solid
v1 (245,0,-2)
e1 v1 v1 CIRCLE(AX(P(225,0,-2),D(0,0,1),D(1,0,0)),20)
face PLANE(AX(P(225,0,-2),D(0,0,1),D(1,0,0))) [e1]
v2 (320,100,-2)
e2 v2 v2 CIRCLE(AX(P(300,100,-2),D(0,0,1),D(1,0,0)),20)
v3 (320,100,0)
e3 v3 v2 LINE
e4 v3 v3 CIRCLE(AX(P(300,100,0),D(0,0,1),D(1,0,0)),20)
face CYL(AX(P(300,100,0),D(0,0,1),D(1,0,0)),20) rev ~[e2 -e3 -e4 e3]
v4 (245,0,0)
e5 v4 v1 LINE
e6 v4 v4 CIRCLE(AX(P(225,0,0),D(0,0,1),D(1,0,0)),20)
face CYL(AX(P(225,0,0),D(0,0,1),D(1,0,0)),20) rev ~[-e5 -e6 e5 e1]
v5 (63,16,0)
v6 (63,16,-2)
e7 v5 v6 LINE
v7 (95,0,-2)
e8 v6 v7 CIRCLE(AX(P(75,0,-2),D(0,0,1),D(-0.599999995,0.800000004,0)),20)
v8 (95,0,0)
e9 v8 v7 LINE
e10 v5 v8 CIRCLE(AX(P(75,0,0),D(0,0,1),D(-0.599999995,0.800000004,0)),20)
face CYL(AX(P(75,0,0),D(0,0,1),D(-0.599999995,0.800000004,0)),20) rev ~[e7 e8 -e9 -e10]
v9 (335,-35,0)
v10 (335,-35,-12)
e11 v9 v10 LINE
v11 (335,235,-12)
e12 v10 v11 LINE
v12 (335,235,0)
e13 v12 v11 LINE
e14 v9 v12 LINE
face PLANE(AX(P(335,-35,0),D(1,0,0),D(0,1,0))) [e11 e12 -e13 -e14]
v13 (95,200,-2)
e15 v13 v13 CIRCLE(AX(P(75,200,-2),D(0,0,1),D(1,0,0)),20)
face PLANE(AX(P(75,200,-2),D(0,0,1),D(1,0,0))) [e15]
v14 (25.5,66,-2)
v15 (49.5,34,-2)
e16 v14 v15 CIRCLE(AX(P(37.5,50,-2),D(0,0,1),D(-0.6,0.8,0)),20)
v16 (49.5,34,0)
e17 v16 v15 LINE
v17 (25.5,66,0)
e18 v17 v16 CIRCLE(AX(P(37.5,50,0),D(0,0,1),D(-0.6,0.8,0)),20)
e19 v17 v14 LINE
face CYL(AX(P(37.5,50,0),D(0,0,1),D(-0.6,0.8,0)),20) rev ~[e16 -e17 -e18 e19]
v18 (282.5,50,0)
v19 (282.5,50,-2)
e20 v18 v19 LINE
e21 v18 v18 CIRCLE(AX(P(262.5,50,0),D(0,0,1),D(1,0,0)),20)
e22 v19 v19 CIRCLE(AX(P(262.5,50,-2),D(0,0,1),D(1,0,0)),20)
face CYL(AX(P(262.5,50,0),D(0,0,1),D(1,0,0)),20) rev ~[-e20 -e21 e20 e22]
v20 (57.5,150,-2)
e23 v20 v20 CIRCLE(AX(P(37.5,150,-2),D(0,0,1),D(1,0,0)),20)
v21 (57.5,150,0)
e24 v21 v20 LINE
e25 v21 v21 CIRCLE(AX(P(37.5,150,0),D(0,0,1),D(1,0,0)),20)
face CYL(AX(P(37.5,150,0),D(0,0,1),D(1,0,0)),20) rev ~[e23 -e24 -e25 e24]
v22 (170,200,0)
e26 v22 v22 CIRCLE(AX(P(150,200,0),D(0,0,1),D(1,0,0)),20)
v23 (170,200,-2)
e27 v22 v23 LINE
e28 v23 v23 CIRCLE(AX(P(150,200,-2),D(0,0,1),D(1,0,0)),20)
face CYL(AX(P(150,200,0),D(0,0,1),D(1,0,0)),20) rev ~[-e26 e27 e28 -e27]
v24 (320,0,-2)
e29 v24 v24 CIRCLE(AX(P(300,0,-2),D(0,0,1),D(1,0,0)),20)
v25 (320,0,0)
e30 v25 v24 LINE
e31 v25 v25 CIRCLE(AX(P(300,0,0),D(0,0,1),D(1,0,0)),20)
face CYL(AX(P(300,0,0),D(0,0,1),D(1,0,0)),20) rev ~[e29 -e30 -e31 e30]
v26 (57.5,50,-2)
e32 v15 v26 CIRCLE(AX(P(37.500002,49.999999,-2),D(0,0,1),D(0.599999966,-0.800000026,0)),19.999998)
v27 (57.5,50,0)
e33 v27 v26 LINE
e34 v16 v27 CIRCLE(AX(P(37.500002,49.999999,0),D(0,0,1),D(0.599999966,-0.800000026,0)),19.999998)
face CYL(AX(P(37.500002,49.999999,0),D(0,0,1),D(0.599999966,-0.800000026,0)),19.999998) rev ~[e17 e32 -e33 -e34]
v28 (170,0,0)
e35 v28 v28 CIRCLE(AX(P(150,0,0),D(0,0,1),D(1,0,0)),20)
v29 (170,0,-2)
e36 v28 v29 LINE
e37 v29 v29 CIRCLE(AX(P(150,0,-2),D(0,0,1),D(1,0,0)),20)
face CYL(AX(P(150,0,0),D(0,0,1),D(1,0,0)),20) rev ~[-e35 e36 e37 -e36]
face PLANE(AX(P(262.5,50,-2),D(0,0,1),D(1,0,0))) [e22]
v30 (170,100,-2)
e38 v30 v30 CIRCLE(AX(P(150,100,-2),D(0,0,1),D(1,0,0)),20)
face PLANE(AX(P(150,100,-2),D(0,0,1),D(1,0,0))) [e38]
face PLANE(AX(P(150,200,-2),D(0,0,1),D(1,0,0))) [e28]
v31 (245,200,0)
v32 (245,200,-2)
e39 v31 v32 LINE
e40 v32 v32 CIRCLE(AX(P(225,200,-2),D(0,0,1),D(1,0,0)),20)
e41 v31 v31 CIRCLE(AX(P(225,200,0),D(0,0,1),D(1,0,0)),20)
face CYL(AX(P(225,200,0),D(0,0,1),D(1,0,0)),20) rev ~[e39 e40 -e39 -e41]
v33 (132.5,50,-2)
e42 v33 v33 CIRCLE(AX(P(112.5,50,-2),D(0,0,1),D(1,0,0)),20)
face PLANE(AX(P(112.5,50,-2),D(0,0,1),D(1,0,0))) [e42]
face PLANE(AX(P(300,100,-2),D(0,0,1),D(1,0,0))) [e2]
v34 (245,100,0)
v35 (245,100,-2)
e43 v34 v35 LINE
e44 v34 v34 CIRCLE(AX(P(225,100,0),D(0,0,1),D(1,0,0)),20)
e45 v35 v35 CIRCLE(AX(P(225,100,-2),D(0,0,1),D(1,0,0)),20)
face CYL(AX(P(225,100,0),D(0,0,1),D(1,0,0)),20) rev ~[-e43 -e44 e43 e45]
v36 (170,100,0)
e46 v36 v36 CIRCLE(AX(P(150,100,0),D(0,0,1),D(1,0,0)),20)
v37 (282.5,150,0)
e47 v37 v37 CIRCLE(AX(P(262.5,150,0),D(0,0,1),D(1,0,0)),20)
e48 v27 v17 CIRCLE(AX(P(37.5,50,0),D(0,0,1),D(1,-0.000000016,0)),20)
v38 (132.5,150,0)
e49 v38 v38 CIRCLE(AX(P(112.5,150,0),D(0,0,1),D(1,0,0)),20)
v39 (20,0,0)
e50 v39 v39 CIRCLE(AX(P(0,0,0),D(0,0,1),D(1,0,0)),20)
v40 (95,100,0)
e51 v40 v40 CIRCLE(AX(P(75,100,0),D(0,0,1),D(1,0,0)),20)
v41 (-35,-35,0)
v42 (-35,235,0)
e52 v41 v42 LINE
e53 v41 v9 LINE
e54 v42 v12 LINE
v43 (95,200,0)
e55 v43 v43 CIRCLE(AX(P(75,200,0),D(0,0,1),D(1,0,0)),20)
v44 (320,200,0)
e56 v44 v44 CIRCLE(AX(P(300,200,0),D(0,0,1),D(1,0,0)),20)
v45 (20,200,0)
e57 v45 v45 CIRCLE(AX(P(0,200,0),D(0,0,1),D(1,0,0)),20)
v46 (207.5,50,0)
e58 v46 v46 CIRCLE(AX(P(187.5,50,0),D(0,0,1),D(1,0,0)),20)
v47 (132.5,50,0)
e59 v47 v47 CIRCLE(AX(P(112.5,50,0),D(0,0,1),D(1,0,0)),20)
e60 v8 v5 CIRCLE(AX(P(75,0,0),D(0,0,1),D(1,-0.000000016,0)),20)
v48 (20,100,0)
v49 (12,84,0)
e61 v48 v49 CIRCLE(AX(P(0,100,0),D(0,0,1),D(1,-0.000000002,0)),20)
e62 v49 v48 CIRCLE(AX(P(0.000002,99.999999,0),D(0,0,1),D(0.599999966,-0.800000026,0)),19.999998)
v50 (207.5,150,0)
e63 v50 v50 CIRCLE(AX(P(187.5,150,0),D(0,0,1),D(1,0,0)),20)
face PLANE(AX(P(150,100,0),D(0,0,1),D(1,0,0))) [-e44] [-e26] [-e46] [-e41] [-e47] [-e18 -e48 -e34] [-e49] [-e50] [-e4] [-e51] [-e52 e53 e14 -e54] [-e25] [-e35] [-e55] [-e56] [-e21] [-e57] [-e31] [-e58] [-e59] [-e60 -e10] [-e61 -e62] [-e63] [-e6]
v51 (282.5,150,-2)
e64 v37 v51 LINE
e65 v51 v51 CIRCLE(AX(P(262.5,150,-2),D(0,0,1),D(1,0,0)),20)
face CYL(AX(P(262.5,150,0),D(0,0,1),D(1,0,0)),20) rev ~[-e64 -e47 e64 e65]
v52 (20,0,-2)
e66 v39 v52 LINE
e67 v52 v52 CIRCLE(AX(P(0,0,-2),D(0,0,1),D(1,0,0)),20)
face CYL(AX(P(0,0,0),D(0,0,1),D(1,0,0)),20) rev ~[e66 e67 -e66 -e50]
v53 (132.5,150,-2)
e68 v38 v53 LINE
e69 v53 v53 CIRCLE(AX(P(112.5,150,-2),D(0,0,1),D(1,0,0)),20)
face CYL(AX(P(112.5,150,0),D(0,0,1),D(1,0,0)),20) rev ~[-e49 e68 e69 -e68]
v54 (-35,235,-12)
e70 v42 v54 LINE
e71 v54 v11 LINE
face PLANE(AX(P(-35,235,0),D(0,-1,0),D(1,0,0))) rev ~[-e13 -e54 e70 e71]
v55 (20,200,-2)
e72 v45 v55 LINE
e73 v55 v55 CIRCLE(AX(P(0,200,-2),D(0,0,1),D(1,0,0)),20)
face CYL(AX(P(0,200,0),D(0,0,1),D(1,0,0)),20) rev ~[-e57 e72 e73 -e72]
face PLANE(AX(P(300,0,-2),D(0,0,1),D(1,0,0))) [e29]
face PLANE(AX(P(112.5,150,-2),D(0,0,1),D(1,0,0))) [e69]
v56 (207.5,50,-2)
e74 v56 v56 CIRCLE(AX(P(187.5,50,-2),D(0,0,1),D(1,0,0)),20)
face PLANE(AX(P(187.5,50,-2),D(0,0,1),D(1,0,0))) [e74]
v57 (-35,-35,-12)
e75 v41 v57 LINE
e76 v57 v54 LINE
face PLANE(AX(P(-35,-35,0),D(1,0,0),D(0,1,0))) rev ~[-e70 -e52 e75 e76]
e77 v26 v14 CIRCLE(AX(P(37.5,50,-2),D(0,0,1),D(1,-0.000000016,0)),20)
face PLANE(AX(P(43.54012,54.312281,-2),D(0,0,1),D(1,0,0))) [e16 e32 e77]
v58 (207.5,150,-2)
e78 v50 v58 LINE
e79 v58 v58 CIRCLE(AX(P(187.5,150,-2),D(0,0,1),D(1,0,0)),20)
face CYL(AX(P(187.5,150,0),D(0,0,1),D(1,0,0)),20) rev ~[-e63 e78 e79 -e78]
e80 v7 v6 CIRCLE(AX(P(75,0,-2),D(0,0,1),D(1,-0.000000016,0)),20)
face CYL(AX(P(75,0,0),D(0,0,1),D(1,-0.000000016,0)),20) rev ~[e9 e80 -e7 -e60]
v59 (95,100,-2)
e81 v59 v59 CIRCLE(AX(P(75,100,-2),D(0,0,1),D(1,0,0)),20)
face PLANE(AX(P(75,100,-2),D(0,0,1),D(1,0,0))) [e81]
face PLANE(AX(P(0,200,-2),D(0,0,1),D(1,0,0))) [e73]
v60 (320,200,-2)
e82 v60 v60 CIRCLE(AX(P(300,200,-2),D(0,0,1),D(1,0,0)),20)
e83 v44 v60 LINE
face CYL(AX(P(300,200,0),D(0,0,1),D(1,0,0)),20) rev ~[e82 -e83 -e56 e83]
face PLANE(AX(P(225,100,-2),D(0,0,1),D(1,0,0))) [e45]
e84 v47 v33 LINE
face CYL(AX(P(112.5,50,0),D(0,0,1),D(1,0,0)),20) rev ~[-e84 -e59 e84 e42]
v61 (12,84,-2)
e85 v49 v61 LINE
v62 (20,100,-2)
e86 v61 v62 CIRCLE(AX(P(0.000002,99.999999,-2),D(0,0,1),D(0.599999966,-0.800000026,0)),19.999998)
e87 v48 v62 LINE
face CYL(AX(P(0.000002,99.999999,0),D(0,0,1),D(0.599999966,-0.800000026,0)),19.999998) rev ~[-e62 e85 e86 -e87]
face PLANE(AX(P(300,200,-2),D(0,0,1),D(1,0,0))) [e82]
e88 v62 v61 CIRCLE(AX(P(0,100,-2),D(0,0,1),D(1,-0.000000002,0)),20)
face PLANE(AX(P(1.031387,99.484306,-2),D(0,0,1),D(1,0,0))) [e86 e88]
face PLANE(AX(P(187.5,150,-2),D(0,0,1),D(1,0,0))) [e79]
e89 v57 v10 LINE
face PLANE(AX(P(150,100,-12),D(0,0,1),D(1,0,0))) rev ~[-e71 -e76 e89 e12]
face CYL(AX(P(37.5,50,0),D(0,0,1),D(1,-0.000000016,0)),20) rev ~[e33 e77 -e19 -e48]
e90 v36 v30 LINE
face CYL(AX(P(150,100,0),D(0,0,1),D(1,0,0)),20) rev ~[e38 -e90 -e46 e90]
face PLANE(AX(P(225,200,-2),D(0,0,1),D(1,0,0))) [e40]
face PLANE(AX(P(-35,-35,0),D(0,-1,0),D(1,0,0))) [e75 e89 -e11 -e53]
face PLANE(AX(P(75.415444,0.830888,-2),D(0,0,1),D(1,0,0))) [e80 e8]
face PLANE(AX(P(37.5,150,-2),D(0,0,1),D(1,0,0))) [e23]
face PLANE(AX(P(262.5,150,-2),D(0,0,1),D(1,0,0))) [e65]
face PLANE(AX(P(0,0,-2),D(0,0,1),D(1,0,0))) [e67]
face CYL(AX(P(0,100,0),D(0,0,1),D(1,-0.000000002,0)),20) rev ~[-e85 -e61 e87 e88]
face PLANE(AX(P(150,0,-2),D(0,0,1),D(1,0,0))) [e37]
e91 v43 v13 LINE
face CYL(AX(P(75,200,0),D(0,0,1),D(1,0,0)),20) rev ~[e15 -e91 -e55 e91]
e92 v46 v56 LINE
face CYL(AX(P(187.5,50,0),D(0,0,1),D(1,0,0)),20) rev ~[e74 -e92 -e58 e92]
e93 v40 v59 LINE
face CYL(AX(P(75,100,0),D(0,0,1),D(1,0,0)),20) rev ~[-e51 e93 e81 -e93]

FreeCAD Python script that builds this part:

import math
import FreeCAD as App
import Part
import Sketcher
from FreeCAD import Vector

doc = App.newDocument("Part")
body = doc.addObject("PartDesign::Body", "Body")
body.AllowCompound = True

sketch1 = body.newObject("Sketcher::SketchObject", "Sketch")
sketch1.AttachmentSupport = (doc.getObject("XY_Plane"), [""])
sketch1.MapMode = "FlatFace"
sketch1.addGeometry(Part.Circle(Vector(0, 200, 0), Vector(0, 0, 1), 20), False)
sketch1.addGeometry(Part.Circle(Vector(75, 200, 0), Vector(0, 0, 1), 20), False)
sketch1.addGeometry(Part.Circle(Vector(150, 200, 0), Vector(0, 0, 1), 20), False)
sketch1.addGeometry(Part.Circle(Vector(225, 200, 0), Vector(0, 0, 1), 20), False)
sketch1.addGeometry(Part.Circle(Vector(300, 200, 0), Vector(0, 0, 1), 20), False)
sketch1.addGeometry(Part.Circle(Vector(262, 150, 0), Vector(0, 0, 1), 20), False)
sketch1.addGeometry(Part.Circle(Vector(300, 100, 0), Vector(0, 0, 1), 20), False)
sketch1.addGeometry(Part.Circle(Vector(300, 0, 0), Vector(0, 0, 1), 20), False)
sketch1.addGeometry(Part.Circle(Vector(188, 150, 0), Vector(0, 0, 1), 20), False)
sketch1.addGeometry(Part.Circle(Vector(112, 150, 0), Vector(0, 0, 1), 20), False)
sketch1.addGeometry(Part.Circle(Vector(38, 150, 0), Vector(0, 0, 1), 20), False)
sketch1.addGeometry(Part.ArcOfCircle(Part.Circle(Vector(0, 100, 0), Vector(0, 0, 1), 20), math.radians(-53), math.radians(0)), False)
sketch1.addGeometry(Part.ArcOfCircle(Part.Circle(Vector(0, 100, 0), Vector(0, 0, 1), 20), math.radians(0), math.radians(307)), False)
sketch1.addGeometry(Part.Circle(Vector(75, 100, 0), Vector(0, 0, 1), 20), False)
sketch1.addGeometry(Part.Circle(Vector(150, 100, 0), Vector(0, 0, 1), 20), False)
sketch1.addGeometry(Part.Circle(Vector(225, 100, 0), Vector(0, 0, 1), 20), False)
sketch1.addGeometry(Part.Circle(Vector(262, 50, 0), Vector(0, 0, 1), 20), False)
sketch1.addGeometry(Part.Circle(Vector(188, 50, 0), Vector(0, 0, 1), 20), False)
sketch1.addGeometry(Part.Circle(Vector(225, 0, 0), Vector(0, 0, 1), 20), False)
sketch1.addGeometry(Part.Circle(Vector(150, 0, 0), Vector(0, 0, 1), 20), False)
sketch1.addGeometry(Part.Circle(Vector(112, 50, 0), Vector(0, 0, 1), 20), False)
sketch1.addGeometry(Part.ArcOfCircle(Part.Circle(Vector(38, 50, 0), Vector(0, 0, 1), 20), math.radians(0), math.radians(127)), False)
sketch1.addGeometry(Part.ArcOfCircle(Part.Circle(Vector(38, 50, 0), Vector(0, 0, 1), 20), math.radians(127), math.radians(307)), False)
sketch1.addGeometry(Part.ArcOfCircle(Part.Circle(Vector(38, 50, 0), Vector(0, 0, 1), 20), math.radians(-53), math.radians(0)), False)
sketch1.addGeometry(Part.Circle(Vector(0, 0, 0), Vector(0, 0, 1), 20), False)
sketch1.addGeometry(Part.ArcOfCircle(Part.Circle(Vector(75, 0, 0), Vector(0, 0, 1), 20), math.radians(0), math.radians(127)), False)
sketch1.addGeometry(Part.ArcOfCircle(Part.Circle(Vector(75, 0, 0), Vector(0, 0, 1), 20), math.radians(127), math.radians(360)), False)
sketch1.addConstraint(Sketcher.Constraint("Tangent", 11, 1, 12, 2))
sketch1.addConstraint(Sketcher.Constraint("Coincident", 12, 1, 11, 2))
sketch1.addConstraint(Sketcher.Constraint("Tangent", 21, 2, 22, 1))
sketch1.addConstraint(Sketcher.Constraint("Tangent", 22, 2, 23, 1))
sketch1.addConstraint(Sketcher.Constraint("Tangent", 23, 2, 21, 1))
sketch1.addConstraint(Sketcher.Constraint("Tangent", 25, 1, 26, 2))
sketch1.addConstraint(Sketcher.Constraint("Coincident", 26, 1, 25, 2))
sketch1.addConstraint(Sketcher.Constraint("Coincident", 24, 3, -1, 1))
sketch1.addConstraint(Sketcher.Constraint("Equal", 0, 1))
sketch1.addConstraint(Sketcher.Constraint("Equal", 1, 2))
sketch1.addConstraint(Sketcher.Constraint("Equal", 2, 3))
sketch1.addConstraint(Sketcher.Constraint("Equal", 3, 4))
sketch1.addConstraint(Sketcher.Constraint("Equal", 4, 5))
sketch1.addConstraint(Sketcher.Constraint("Equal", 5, 6))
sketch1.addConstraint(Sketcher.Constraint("Equal", 6, 7))
sketch1.addConstraint(Sketcher.Constraint("Equal", 7, 8))
sketch1.addConstraint(Sketcher.Constraint("Equal", 8, 9))
sketch1.addConstraint(Sketcher.Constraint("Equal", 9, 10))
sketch1.addConstraint(Sketcher.Constraint("Equal", 10, 11))
sketch1.addConstraint(Sketcher.Constraint("Equal", 12, 13))
sketch1.addConstraint(Sketcher.Constraint("Equal", 13, 14))
sketch1.addConstraint(Sketcher.Constraint("Equal", 14, 15))
sketch1.addConstraint(Sketcher.Constraint("Equal", 15, 16))
sketch1.addConstraint(Sketcher.Constraint("Equal", 16, 17))
sketch1.addConstraint(Sketcher.Constraint("Equal", 17, 18))
sketch1.addConstraint(Sketcher.Constraint("Equal", 18, 19))
sketch1.addConstraint(Sketcher.Constraint("Equal", 19, 20))
sketch1.addConstraint(Sketcher.Constraint("Equal", 20, 21))
sketch1.addConstraint(Sketcher.Constraint("Equal", 23, 24))
sketch1.addConstraint(Sketcher.Constraint("Equal", 24, 25))
sketch1.addConstraint(Sketcher.Constraint("PointOnObject", 0, 3, -2))
sketch1.addConstraint(Sketcher.Constraint("PointOnObject", 7, 3, -1))
sketch1.addConstraint(Sketcher.Constraint("PointOnObject", 11, 3, -2))
sketch1.addConstraint(Sketcher.Constraint("PointOnObject", 18, 3, -1))
sketch1.addConstraint(Sketcher.Constraint("PointOnObject", 19, 3, -1))
sketch1.addConstraint(Sketcher.Constraint("PointOnObject", 25, 3, -1))
sketch1.addConstraint(Sketcher.Constraint("PointOnObject", 25, 1, -1))
sketch1.addConstraint(Sketcher.Constraint("Horizontal", 0, 3, 1, 3))
sketch1.addConstraint(Sketcher.Constraint("Horizontal", 1, 3, 2, 3))
sketch1.addConstraint(Sketcher.Constraint("Horizontal", 2, 3, 3, 3))
sketch1.addConstraint(Sketcher.Constraint("Horizontal", 3, 3, 4, 3))
sketch1.addConstraint(Sketcher.Constraint("Horizontal", 5, 3, 8, 3))
sketch1.addConstraint(Sketcher.Constraint("Horizontal", 8, 3, 9, 3))
sketch1.addConstraint(Sketcher.Constraint("Horizontal", 9, 3, 10, 3))
sketch1.addConstraint(Sketcher.Constraint("Horizontal", 6, 3, 11, 3))
sketch1.addConstraint(Sketcher.Constraint("Horizontal", 12, 3, 13, 3))
sketch1.addConstraint(Sketcher.Constraint("Horizontal", 13, 3, 14, 3))
sketch1.addConstraint(Sketcher.Constraint("Horizontal", 14, 3, 15, 3))
sketch1.addConstraint(Sketcher.Constraint("Horizontal", 16, 3, 17, 3))
sketch1.addConstraint(Sketcher.Constraint("Horizontal", 17, 3, 20, 3))
sketch1.addConstraint(Sketcher.Constraint("Horizontal", 20, 3, 21, 3))
sketch1.addConstraint(Sketcher.Constraint("Horizontal", 15, 3, 12, 1))
sketch1.addConstraint(Sketcher.Constraint("Horizontal", 22, 3, 23, 2))
sketch1.addConstraint(Sketcher.Constraint("Vertical", 4, 3, 6, 3))
sketch1.addConstraint(Sketcher.Constraint("Vertical", 6, 3, 7, 3))
sketch1.addConstraint(Sketcher.Constraint("Vertical", 1, 3, 13, 3))
sketch1.addConstraint(Sketcher.Constraint("Vertical", 2, 3, 14, 3))
sketch1.addConstraint(Sketcher.Constraint("Vertical", 3, 3, 15, 3))
sketch1.addConstraint(Sketcher.Constraint("Vertical", 5, 3, 16, 3))
sketch1.addConstraint(Sketcher.Constraint("Vertical", 8, 3, 17, 3))
sketch1.addConstraint(Sketcher.Constraint("Vertical", 15, 3, 18, 3))
sketch1.addConstraint(Sketcher.Constraint("Vertical", 14, 3, 19, 3))
sketch1.addConstraint(Sketcher.Constraint("Vertical", 9, 3, 20, 3))
sketch1.addConstraint(Sketcher.Constraint("Vertical", 10, 3, 21, 3))
sketch1.addConstraint(Sketcher.Constraint("Vertical", 13, 3, 25, 3))
sketch1.addConstraint(Sketcher.Constraint("Diameter", 0, 40.0))
sketch1.addConstraint(Sketcher.Constraint("DistanceY", -1, 1, 0, 3, 200.0))
sketch1.addConstraint(Sketcher.Constraint("DistanceX", -1, 1, 1, 3, 75.0))
sketch1.addConstraint(Sketcher.Constraint("DistanceX", -1, 1, 2, 3, 150.0))
sketch1.addConstraint(Sketcher.Constraint("DistanceX", -1, 1, 3, 3, 225.0))
sketch1.addConstraint(Sketcher.Constraint("DistanceX", -1, 1, 4, 3, 300.0))
sketch1.addConstraint(Sketcher.Constraint("DistanceY", -1, 1, 5, 3, 150.0))
sketch1.addConstraint(Sketcher.Constraint("DistanceY", -1, 1, 6, 3, 100.0))
sketch1.addConstraint(Sketcher.Constraint("DistanceY", -1, 1, 16, 3, 50.0))
sketch1.addConstraint(Sketcher.Constraint("DistanceX", -1, 1, 11, 1, 12.0))
sketch1.addConstraint(Sketcher.Constraint("DistanceY", -1, 1, 21, 2, 66.0))
sketch1.addConstraint(Sketcher.Constraint("DistanceY", -1, 1, 22, 2, 34.0))
sketch1.addConstraint(Sketcher.Constraint("DistanceX", -1, 1, 26, 1, 63.0))
sketch1.addConstraint(Sketcher.Constraint("DistanceX", 8, 3, 5, 3, 75.0))
sketch1.addConstraint(Sketcher.Constraint("DistanceX", 9, 3, 8, 3, 75.0))
sketch1.addConstraint(Sketcher.Constraint("DistanceX", 10, 3, 9, 3, 75.0))
sketch1.addConstraint(Sketcher.Constraint("DistanceX", -1, 1, 5, 3, 262.5))
pad1 = body.newObject("PartDesign::Pad", "Pad")
pad1.Profile = sketch1
pad1.Length = 2
pad1.Reversed = True
body2 = doc.addObject("PartDesign::Body", "Body001")

sketch2 = body2.newObject("Sketcher::SketchObject", "Sketch001")
sketch2.AttachmentSupport = (doc.getObject("XY_Plane001"), [""])
sketch2.MapMode = "FlatFace"
sketch2.addGeometry(Part.LineSegment(Vector(-35, 235, 0), Vector(-35, -35, 0)), False)
sketch2.addGeometry(Part.LineSegment(Vector(-35, -35, 0), Vector(335, -35, 0)), False)
sketch2.addGeometry(Part.LineSegment(Vector(335, -35, 0), Vector(335, 235, 0)), False)
sketch2.addGeometry(Part.LineSegment(Vector(335, 235, 0), Vector(-35, 235, 0)), False)
sketch2.addConstraint(Sketcher.Constraint("Coincident", 0, 2, 1, 1))
sketch2.addConstraint(Sketcher.Constraint("Coincident", 1, 2, 2, 1))
sketch2.addConstraint(Sketcher.Constraint("Coincident", 2, 2, 3, 1))
sketch2.addConstraint(Sketcher.Constraint("Coincident", 3, 2, 0, 1))
sketch2.addConstraint(Sketcher.Constraint("Vertical", 0))
sketch2.addConstraint(Sketcher.Constraint("Horizontal", 1))
sketch2.addConstraint(Sketcher.Constraint("Vertical", 2))
sketch2.addConstraint(Sketcher.Constraint("Horizontal", 3))
sketch2.addConstraint(Sketcher.Constraint("DistanceX", 1, 1, 1, 2, 370.0))
sketch2.addConstraint(Sketcher.Constraint("DistanceY", 0, 2, 0, 1, 270.0))
sketch2.addConstraint(Sketcher.Constraint("DistanceX", 0, 2, -1, 1, 35.0))
sketch2.addConstraint(Sketcher.Constraint("DistanceY", 0, 2, -1, 1, 35.0))
pad2 = body2.newObject("PartDesign::Pad", "Pad001")
pad2.Profile = sketch2
pad2.Length = 12
pad2.Reversed = True
doc.recompute()

boolean = body2.newObject("PartDesign::Boolean", "Boolean")
boolean.Type = "Cut"
boolean.addObjects([body])

doc.recompute()
